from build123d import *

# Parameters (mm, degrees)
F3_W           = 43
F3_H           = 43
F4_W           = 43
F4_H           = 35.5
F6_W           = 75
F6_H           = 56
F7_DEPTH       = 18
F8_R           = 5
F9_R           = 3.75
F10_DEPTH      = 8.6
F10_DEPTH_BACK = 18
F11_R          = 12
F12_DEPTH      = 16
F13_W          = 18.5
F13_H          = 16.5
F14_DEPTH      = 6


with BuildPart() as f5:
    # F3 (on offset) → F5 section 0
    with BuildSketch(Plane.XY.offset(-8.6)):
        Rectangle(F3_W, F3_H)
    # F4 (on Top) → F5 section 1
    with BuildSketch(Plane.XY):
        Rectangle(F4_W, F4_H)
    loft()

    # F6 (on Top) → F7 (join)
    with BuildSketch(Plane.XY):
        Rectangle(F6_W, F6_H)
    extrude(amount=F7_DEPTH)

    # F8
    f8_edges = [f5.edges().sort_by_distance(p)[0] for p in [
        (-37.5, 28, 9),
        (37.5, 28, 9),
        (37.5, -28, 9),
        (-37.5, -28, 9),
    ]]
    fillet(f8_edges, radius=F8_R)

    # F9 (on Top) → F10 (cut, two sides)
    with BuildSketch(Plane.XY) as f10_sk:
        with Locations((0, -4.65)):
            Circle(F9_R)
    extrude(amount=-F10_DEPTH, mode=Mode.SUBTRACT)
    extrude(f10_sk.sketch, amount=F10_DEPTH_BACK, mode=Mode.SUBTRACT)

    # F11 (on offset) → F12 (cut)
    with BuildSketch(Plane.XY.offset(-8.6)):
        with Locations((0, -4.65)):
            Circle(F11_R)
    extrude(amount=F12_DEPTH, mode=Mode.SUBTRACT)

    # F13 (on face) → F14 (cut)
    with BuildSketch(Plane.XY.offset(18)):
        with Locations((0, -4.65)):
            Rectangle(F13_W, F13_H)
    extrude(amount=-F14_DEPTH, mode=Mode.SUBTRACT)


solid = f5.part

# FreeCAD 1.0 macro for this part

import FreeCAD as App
import Part
import Sketcher
from FreeCAD import Vector
Q = App.Units.Quantity


def edges_at(feature, points):
    """Names of the edges that pass closest to the given points."""
    edges = feature.Shape.Edges
    near = lambda p: min(range(len(edges)), key=lambda i: edges[i].distToShape(Part.Vertex(*p))[0])
    return sorted({f"Edge{near(p) + 1}" for p in points})

doc = App.newDocument("Part")
body = doc.addObject("PartDesign::Body", "Body")

sketch1 = body.newObject("Sketcher::SketchObject", "Sketch")
sketch1.AttachmentSupport = (doc.getObject("XY_Plane"), [""])
sketch1.MapMode = "FlatFace"
sketch1.AttachmentOffset = App.Placement(Vector(0, 0, -8.6), App.Rotation())
sketch1.addGeometry([
    Part.LineSegment(Vector(-22, 22, 0), Vector(-22, -22, 0)),
    Part.LineSegment(Vector(-22, -22, 0), Vector(22, -22, 0)),
    Part.LineSegment(Vector(22, -22, 0), Vector(22, 22, 0)),
    Part.LineSegment(Vector(22, 22, 0), Vector(-22, 22, 0)),
], False)
sketch1.addConstraint([
    Sketcher.Constraint("Coincident", 0, 2, 1, 1),
    Sketcher.Constraint("Coincident", 1, 2, 2, 1),
    Sketcher.Constraint("Coincident", 2, 2, 3, 1),
    Sketcher.Constraint("Coincident", 3, 2, 0, 1),
    Sketcher.Constraint("Vertical", 0),
    Sketcher.Constraint("Horizontal", 1),
    Sketcher.Constraint("Vertical", 2),
    Sketcher.Constraint("Horizontal", 3),
    Sketcher.Constraint("Symmetric", 0, 2, 2, 2, -1, 1),
    Sketcher.Constraint("Equal", 3, 0),
    Sketcher.Constraint("DistanceX", 1, 1, 1, 2, Q("43 mm")),
])

sketch2 = body.newObject("Sketcher::SketchObject", "Sketch001")
sketch2.AttachmentSupport = (doc.getObject("XY_Plane"), [""])
sketch2.MapMode = "FlatFace"
sketch2.addGeometry([
    Part.LineSegment(Vector(-22, 18, 0), Vector(-22, -18, 0)),
    Part.LineSegment(Vector(-22, -18, 0), Vector(22, -18, 0)),
    Part.LineSegment(Vector(22, -18, 0), Vector(22, 18, 0)),
    Part.LineSegment(Vector(22, 18, 0), Vector(-22, 18, 0)),
], False)
sketch2.addConstraint([
    Sketcher.Constraint("Coincident", 0, 2, 1, 1),
    Sketcher.Constraint("Coincident", 1, 2, 2, 1),
    Sketcher.Constraint("Coincident", 2, 2, 3, 1),
    Sketcher.Constraint("Coincident", 3, 2, 0, 1),
    Sketcher.Constraint("Vertical", 0),
    Sketcher.Constraint("Horizontal", 1),
    Sketcher.Constraint("Vertical", 2),
    Sketcher.Constraint("Horizontal", 3),
    Sketcher.Constraint("Symmetric", 0, 2, 2, 2, -1, 1),
    Sketcher.Constraint("DistanceX", 1, 1, 1, 2, Q("43 mm")),
    Sketcher.Constraint("DistanceY", 0, 2, 0, 1, Q("35.5 mm")),
])

additiveloft = body.newObject("PartDesign::AdditiveLoft", "AdditiveLoft")
additiveloft.Profile = sketch1
additiveloft.Sections = [sketch2]

sketch3 = body.newObject("Sketcher::SketchObject", "Sketch002")
sketch3.AttachmentSupport = (doc.getObject("XY_Plane"), [""])
sketch3.MapMode = "FlatFace"
sketch3.addGeometry([
    Part.LineSegment(Vector(-38, 28, 0), Vector(-38, -28, 0)),
    Part.LineSegment(Vector(-38, -28, 0), Vector(38, -28, 0)),
    Part.LineSegment(Vector(38, -28, 0), Vector(38, 28, 0)),
    Part.LineSegment(Vector(38, 28, 0), Vector(-38, 28, 0)),
], False)
sketch3.addConstraint([
    Sketcher.Constraint("Coincident", 0, 2, 1, 1),
    Sketcher.Constraint("Coincident", 1, 2, 2, 1),
    Sketcher.Constraint("Coincident", 2, 2, 3, 1),
    Sketcher.Constraint("Coincident", 3, 2, 0, 1),
    Sketcher.Constraint("Vertical", 0),
    Sketcher.Constraint("Horizontal", 1),
    Sketcher.Constraint("Vertical", 2),
    Sketcher.Constraint("Horizontal", 3),
    Sketcher.Constraint("Symmetric", 0, 2, 2, 2, -1, 1),
    Sketcher.Constraint("DistanceX", 1, 1, 1, 2, Q("75 mm")),
    Sketcher.Constraint("DistanceY", 0, 2, 0, 1, Q("56 mm")),
])
pad1 = body.newObject("PartDesign::Pad", "Pad")
pad1.Profile = sketch3
pad1.Length = 18
doc.recompute()

fillet = body.newObject("PartDesign::Fillet", "Fillet")
fillet.Base = (pad1, edges_at(pad1, [
    (-37.5, 28, 9),
    (37.5, 28, 9),
    (37.5, -28, 9),
    (-37.5, -28, 9),
]))
fillet.Radius = 5

sketch4 = body.newObject("Sketcher::SketchObject", "Sketch003")
sketch4.AttachmentSupport = (doc.getObject("XY_Plane"), [""])
sketch4.MapMode = "FlatFace"
sketch4.addGeometry(Part.Circle(Vector(0, -4.7, 0), Vector(0, 0, 1), 3.8), False)
sketch4.addConstraint([
    Sketcher.Constraint("PointOnObject", 0, 3, -2),
    Sketcher.Constraint("Diameter", 0, Q("7.5 mm")),
    Sketcher.Constraint("DistanceY", 0, 3, -1, 1, Q("4.65 mm")),
])
pocket1 = body.newObject("PartDesign::Pocket", "Pocket")
pocket1.Profile = sketch4
pocket1.Type = "ThroughAll"
pocket1.Midplane = True

sketch5 = body.newObject("Sketcher::SketchObject", "Sketch004")
sketch5.AttachmentSupport = (doc.getObject("XY_Plane"), [""])
sketch5.MapMode = "FlatFace"
sketch5.AttachmentOffset = App.Placement(Vector(0, 0, -8.6), App.Rotation())
sketch5.addGeometry(Part.Circle(Vector(0, -5, 0), Vector(0, 0, 1), 12), False)
sketch5.addConstraint([
    Sketcher.Constraint("PointOnObject", 0, 3, -2),
    Sketcher.Constraint("Diameter", 0, Q("24 mm")),
    Sketcher.Constraint("DistanceY", 0, 3, -1, 1, Q("4.65 mm")),
])
pocket2 = body.newObject("PartDesign::Pocket", "Pocket001")
pocket2.Profile = sketch5
pocket2.Length = 16
pocket2.Reversed = True

sketch6 = body.newObject("Sketcher::SketchObject", "Sketch005")
sketch6.AttachmentSupport = (doc.getObject("XY_Plane"), [""])
sketch6.MapMode = "FlatFace"
sketch6.AttachmentOffset = App.Placement(Vector(0, 0, 18), App.Rotation())
sketch6.addGeometry([
    Part.LineSegment(Vector(-9, 4, 0), Vector(-9, -13, 0)),
    Part.LineSegment(Vector(-9, -13, 0), Vector(9, -13, 0)),
    Part.LineSegment(Vector(9, -13, 0), Vector(9, 4, 0)),
    Part.LineSegment(Vector(9, 4, 0), Vector(-9, 4, 0)),
], False)
sketch6.addConstraint([
    Sketcher.Constraint("Coincident", 0, 2, 1, 1),
    Sketcher.Constraint("Coincident", 1, 2, 2, 1),
    Sketcher.Constraint("Coincident", 2, 2, 3, 1),
    Sketcher.Constraint("Coincident", 3, 2, 0, 1),
    Sketcher.Constraint("Vertical", 0),
    Sketcher.Constraint("Horizontal", 1),
    Sketcher.Constraint("Vertical", 2),
    Sketcher.Constraint("Horizontal", 3),
    Sketcher.Constraint("DistanceX", 1, 1, 1, 2, Q("18.5 mm")),
    Sketcher.Constraint("DistanceY", 0, 2, 0, 1, Q("16.5 mm")),
    Sketcher.Constraint("DistanceY", 0, 2, -1, 1, Q("12.9 mm")),
    Sketcher.Constraint("DistanceX", 0, 2, -1, 1, Q("9.25 mm")),
])
pocket3 = body.newObject("PartDesign::Pocket", "Pocket002")
pocket3.Profile = sketch6
pocket3.Length = 6

doc.recompute()
